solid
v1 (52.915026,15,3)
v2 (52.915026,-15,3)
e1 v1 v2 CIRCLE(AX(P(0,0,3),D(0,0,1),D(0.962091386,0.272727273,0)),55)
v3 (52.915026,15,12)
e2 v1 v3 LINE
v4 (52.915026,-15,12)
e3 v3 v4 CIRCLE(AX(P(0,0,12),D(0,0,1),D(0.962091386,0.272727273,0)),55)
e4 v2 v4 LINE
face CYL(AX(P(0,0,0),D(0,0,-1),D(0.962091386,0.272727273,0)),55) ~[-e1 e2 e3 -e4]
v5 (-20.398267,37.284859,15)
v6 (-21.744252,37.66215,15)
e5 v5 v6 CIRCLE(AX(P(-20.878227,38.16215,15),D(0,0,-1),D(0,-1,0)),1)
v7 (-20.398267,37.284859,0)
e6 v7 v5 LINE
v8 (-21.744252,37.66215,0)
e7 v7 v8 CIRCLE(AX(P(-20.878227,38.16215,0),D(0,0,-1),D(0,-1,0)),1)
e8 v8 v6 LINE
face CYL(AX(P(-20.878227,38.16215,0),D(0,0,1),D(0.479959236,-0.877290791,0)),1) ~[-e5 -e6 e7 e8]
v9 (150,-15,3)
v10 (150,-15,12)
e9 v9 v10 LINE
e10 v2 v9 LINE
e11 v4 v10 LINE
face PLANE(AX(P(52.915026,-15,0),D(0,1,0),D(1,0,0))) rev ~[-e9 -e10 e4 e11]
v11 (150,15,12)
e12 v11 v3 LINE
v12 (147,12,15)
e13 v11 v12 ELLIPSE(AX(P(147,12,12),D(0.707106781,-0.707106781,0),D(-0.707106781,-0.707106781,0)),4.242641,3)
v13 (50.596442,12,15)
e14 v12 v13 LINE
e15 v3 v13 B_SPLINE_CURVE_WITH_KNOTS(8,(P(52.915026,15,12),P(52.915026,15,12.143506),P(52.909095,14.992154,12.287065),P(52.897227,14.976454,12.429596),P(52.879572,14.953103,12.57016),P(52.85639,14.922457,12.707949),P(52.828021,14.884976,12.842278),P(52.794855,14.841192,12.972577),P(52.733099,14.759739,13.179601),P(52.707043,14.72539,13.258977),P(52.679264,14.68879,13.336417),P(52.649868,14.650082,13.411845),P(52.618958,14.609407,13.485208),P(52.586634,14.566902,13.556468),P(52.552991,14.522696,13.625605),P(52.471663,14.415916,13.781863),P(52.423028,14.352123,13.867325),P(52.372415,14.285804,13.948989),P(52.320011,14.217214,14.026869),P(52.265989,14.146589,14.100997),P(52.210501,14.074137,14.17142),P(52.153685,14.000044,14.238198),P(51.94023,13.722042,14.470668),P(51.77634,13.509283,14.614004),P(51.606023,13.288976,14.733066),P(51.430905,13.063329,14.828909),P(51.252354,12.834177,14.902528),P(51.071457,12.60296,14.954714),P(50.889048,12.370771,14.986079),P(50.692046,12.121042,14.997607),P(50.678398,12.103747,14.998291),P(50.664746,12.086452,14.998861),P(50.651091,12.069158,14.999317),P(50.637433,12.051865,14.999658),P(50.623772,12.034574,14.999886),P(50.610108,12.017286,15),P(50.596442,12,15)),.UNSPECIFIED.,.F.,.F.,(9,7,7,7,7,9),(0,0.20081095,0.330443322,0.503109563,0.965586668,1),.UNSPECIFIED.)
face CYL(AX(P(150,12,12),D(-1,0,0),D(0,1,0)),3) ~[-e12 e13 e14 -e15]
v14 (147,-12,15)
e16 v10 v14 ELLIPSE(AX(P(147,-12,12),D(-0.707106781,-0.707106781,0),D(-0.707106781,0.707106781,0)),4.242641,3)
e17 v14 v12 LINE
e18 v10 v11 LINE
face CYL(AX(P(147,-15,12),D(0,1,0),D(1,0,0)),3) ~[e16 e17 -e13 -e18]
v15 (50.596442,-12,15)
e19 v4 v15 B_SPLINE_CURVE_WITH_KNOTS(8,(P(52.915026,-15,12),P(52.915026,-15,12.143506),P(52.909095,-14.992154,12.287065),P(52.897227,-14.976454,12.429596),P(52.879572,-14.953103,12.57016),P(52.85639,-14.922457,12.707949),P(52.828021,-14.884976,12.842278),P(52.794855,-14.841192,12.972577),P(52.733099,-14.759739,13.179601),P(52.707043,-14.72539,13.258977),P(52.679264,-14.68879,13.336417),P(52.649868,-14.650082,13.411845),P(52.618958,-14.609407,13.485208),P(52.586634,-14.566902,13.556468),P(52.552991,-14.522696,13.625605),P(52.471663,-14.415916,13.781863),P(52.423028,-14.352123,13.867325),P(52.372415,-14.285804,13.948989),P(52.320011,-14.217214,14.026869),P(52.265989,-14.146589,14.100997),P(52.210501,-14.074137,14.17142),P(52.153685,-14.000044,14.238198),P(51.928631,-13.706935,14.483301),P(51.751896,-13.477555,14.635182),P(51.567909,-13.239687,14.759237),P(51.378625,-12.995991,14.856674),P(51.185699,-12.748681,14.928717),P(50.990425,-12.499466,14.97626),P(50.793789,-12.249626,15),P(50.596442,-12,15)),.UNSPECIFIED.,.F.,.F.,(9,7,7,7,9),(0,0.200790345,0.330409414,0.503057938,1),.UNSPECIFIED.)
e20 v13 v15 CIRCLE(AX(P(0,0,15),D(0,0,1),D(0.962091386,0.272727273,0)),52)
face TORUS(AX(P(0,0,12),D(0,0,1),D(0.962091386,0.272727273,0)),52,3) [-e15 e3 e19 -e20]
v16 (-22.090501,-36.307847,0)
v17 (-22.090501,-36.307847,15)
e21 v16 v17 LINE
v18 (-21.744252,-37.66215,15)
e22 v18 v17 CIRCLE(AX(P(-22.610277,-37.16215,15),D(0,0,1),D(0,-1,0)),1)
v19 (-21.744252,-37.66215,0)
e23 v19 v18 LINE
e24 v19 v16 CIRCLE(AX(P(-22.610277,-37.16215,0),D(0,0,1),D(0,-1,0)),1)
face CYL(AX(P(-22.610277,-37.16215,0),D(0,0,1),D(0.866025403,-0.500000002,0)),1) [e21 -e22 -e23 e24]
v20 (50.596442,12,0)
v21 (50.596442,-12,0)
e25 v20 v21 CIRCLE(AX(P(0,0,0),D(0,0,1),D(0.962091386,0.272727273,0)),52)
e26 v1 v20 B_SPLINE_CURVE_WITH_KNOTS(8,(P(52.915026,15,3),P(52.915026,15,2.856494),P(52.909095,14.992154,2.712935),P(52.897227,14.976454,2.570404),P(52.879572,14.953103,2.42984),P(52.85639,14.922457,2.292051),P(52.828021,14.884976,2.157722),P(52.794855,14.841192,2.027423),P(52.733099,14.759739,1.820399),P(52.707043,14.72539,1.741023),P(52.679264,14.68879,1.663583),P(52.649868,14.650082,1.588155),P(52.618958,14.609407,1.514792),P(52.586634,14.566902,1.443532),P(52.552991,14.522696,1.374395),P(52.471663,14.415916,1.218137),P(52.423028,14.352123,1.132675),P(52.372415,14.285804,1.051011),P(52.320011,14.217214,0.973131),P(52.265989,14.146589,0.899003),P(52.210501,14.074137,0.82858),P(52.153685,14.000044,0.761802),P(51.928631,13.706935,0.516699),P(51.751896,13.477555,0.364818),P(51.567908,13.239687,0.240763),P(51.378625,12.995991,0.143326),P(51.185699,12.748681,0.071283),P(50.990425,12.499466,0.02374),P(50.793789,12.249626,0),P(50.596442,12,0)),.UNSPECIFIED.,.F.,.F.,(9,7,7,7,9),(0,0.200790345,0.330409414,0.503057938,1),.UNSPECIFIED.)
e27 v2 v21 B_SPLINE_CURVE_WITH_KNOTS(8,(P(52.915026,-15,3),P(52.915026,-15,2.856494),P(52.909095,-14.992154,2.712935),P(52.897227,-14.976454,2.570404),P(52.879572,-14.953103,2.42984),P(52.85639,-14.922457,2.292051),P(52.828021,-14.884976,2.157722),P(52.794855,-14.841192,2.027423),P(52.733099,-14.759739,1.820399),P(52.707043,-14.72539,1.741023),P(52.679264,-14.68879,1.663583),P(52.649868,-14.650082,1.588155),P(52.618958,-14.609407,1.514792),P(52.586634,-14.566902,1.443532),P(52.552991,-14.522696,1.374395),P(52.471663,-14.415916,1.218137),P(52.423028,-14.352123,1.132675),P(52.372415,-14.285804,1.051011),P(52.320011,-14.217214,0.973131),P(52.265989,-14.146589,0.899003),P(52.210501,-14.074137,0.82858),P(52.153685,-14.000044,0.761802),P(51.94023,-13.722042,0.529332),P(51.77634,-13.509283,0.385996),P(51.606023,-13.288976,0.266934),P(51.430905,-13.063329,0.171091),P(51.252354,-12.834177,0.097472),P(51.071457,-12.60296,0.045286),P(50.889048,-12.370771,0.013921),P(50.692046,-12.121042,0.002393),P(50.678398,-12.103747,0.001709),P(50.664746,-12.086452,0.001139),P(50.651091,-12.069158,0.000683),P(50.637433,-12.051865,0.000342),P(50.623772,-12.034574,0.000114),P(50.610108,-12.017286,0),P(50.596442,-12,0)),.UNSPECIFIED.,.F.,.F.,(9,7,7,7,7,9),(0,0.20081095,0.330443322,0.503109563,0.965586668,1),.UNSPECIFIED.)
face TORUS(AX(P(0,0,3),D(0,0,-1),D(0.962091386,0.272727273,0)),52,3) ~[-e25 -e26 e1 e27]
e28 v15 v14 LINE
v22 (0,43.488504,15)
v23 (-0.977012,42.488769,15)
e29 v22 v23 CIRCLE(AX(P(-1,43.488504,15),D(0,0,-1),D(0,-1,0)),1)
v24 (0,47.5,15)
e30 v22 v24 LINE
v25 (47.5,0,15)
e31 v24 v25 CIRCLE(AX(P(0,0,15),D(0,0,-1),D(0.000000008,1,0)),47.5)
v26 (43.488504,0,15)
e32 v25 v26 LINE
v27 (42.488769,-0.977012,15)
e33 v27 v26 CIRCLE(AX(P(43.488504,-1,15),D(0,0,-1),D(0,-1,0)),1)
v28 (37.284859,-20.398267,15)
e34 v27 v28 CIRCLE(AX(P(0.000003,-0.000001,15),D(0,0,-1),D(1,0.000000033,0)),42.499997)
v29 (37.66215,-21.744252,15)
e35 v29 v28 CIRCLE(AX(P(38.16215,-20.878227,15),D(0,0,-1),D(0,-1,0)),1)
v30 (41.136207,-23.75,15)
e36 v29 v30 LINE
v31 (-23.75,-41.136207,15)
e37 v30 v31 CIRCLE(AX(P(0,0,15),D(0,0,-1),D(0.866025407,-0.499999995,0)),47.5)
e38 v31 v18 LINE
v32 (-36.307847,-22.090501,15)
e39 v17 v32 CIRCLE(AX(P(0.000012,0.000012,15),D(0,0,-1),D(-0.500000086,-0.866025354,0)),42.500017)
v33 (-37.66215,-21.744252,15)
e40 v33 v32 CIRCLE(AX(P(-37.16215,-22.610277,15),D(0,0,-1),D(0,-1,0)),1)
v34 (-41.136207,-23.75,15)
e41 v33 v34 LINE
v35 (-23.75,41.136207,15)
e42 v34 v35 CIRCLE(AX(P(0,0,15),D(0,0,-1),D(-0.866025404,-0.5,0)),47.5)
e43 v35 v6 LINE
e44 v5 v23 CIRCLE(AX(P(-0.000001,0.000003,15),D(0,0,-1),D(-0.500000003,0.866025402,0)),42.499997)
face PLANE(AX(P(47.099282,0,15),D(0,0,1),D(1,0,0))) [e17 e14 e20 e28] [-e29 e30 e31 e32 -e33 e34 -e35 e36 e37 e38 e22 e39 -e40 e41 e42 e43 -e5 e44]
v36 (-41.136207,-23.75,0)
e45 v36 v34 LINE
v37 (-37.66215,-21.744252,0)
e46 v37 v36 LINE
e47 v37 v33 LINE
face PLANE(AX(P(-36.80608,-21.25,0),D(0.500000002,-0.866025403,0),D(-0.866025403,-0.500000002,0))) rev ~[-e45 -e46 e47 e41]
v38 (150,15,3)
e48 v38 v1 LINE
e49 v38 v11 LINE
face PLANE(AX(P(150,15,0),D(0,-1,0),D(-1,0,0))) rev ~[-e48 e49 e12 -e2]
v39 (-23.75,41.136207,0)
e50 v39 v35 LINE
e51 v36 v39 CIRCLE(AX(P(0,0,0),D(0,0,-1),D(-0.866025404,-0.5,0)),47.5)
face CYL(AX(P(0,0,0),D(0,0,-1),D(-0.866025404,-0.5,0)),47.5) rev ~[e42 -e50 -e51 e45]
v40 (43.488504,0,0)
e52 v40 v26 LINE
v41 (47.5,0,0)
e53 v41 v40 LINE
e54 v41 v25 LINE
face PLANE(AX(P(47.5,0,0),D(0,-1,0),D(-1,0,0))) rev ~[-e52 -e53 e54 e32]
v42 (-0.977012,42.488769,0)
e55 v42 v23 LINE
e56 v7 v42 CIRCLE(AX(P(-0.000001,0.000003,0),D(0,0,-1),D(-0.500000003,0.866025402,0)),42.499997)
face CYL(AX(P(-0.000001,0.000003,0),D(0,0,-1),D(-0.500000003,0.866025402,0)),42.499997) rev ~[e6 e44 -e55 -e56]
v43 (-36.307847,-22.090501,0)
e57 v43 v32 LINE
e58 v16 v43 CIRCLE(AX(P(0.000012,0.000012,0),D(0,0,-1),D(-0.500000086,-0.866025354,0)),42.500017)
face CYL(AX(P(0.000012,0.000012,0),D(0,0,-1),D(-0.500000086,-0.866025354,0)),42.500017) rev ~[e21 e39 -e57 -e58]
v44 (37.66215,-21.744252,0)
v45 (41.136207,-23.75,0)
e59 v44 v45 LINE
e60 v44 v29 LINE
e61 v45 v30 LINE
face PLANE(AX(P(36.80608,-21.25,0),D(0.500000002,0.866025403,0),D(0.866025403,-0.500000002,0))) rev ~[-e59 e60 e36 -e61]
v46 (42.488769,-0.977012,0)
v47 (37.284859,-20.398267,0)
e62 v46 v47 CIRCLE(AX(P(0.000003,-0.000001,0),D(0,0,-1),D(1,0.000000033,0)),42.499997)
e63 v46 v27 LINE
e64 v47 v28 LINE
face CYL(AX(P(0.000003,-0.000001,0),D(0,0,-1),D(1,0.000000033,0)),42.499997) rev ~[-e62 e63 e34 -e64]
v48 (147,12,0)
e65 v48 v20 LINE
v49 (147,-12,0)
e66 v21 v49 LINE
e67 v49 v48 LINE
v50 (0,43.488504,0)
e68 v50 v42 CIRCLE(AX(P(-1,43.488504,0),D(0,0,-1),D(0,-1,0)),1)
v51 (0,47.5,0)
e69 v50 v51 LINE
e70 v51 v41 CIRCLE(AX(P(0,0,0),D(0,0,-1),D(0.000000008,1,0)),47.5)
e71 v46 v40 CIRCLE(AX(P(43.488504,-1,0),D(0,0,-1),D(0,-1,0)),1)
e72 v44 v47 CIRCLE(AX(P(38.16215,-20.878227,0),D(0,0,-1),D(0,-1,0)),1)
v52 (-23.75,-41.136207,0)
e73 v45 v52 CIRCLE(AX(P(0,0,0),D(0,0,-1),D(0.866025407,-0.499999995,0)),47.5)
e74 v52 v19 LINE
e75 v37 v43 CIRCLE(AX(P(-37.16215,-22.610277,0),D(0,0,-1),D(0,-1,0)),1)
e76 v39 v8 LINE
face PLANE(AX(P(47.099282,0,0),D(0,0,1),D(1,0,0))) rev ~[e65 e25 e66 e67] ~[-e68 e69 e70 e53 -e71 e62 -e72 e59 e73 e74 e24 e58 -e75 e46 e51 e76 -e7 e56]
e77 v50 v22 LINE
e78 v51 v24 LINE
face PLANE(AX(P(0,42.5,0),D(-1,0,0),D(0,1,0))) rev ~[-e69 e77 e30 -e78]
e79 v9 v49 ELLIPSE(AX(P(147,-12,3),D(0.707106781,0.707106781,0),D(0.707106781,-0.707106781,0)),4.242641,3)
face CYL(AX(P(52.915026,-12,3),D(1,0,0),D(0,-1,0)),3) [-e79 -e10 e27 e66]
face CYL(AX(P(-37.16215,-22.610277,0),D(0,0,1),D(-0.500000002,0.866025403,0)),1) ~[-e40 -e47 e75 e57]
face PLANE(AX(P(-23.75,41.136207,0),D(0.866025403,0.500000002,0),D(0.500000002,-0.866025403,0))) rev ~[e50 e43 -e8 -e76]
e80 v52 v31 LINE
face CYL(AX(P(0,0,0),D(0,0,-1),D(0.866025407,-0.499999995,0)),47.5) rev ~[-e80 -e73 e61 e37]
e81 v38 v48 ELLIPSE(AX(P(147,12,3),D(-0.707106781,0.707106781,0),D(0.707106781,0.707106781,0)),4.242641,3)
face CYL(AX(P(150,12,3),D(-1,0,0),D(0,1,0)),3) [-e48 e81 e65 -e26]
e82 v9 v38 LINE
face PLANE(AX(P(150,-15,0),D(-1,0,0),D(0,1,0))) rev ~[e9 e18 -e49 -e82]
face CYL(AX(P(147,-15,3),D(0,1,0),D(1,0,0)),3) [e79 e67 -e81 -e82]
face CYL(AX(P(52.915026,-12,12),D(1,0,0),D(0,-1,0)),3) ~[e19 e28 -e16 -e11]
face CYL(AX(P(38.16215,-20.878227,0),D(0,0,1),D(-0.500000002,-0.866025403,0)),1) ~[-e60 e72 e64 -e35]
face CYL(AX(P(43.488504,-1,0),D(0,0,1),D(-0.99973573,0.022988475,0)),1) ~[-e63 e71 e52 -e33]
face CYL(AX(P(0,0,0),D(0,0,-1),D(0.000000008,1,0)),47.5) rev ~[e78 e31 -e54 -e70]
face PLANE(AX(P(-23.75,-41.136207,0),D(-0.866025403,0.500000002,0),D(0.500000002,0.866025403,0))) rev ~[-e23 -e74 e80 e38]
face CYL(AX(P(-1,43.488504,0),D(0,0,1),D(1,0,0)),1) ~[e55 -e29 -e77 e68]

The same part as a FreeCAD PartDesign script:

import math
import FreeCAD as App
import Part
import Sketcher

V = App.Vector
Q = App.Units.Quantity


def edges_at(feature, points):
    """Names of the edges that pass closest to the given points."""
    edges = feature.Shape.Edges
    near = lambda p: min(range(len(edges)), key=lambda i: edges[i].distToShape(Part.Vertex(*p))[0])
    return sorted({f"Edge{near(p) + 1}" for p in points})

doc = App.newDocument("Part")
body = doc.addObject("PartDesign::Body", "Body")

sketch1 = doc.addObject("Sketcher::SketchObject", "Sketch")
body.addObject(sketch1)
sketch1.AttachmentSupport = (doc.XY_Plane, [""])
sketch1.MapMode = "FlatFace"
sketch1.addGeometry([
    Part.LineSegment(V(150, 15, 0), V(52.915026, 15, 0)),
    Part.ArcOfCircle(Part.Circle(V(0, 0, 0), V(0, 0, 1), 55), math.radians(15.82662), math.radians(344.17338)),
    Part.LineSegment(V(52.915026, -15, 0), V(150, -15, 0)),
    Part.LineSegment(V(150, -15, 0), V(150, 15, 0)),
    Part.LineSegment(V(-23.75, -41.136207, 0), V(-21.25, -36.80608, 0)),
    Part.ArcOfCircle(Part.Circle(V(0.000012, 0.000012, 0), V(0, 0, 1), 42.500017), math.radians(-149.999994), math.radians(-120.000006)),
    Part.LineSegment(V(-36.80608, -21.25, 0), V(-41.136207, -23.75, 0)),
    Part.ArcOfCircle(Part.Circle(V(0, 0, 0), V(0, 0, 1), 47.5), math.radians(120), math.radians(210)),
    Part.LineSegment(V(-23.75, 41.136207, 0), V(-21.25, 36.80608, 0)),
    Part.ArcOfCircle(Part.Circle(V(-0.000001, 0.000003, 0), V(0, 0, 1), 42.499997), math.radians(89.999998), math.radians(120)),
    Part.LineSegment(V(0, 42.5, 0), V(0, 47.5, 0)),
    Part.ArcOfCircle(Part.Circle(V(0, 0, 0), V(0, 0, 1), 47.5), math.radians(0), math.radians(90)),
    Part.LineSegment(V(47.5, 0, 0), V(42.5, 0, 0)),
    Part.ArcOfCircle(Part.Circle(V(0.000003, -0.000001, 0), V(0, 0, 1), 42.499997), math.radians(-30), math.radians(0.000002)),
    Part.LineSegment(V(36.80608, -21.25, 0), V(41.136207, -23.75, 0)),
    Part.ArcOfCircle(Part.Circle(V(0, 0, 0), V(0, 0, 1), 47.5), math.radians(-120), math.radians(-30)),
], False)
sketch1.addConstraint([
    Sketcher.Constraint("Coincident", 0, 2, 1, 1),
    Sketcher.Constraint("Coincident", 1, 2, 2, 1),
    Sketcher.Constraint("Coincident", 2, 2, 3, 1),
    Sketcher.Constraint("Coincident", 3, 2, 0, 1),
    Sketcher.Constraint("Coincident", 4, 2, 5, 2),
    Sketcher.Constraint("Coincident", 5, 1, 6, 1),
    Sketcher.Constraint("Coincident", 6, 2, 7, 2),
    Sketcher.Constraint("Coincident", 7, 1, 8, 1),
    Sketcher.Constraint("Coincident", 8, 2, 9, 2),
    Sketcher.Constraint("Coincident", 9, 1, 10, 1),
    Sketcher.Constraint("Coincident", 10, 2, 11, 2),
    Sketcher.Constraint("Coincident", 11, 1, 12, 1),
    Sketcher.Constraint("Coincident", 12, 2, 13, 2),
    Sketcher.Constraint("Coincident", 13, 1, 14, 1),
    Sketcher.Constraint("Coincident", 14, 2, 15, 2),
    Sketcher.Constraint("Coincident", 15, 1, 4, 1),
    Sketcher.Constraint("Horizontal", 0),
    Sketcher.Constraint("Horizontal", 2),
    Sketcher.Constraint("Vertical", 3),
    Sketcher.Constraint("Vertical", 10),
    Sketcher.Constraint("Horizontal", 12),
    Sketcher.Constraint("Coincident", 1, 3, -1, 1),
    Sketcher.Constraint("Coincident", 7, 3, -1, 1),
    Sketcher.Constraint("Coincident", 9, 3, -1, 1),
    Sketcher.Constraint("Coincident", 11, 3, -1, 1),
    Sketcher.Constraint("Coincident", 13, 3, -1, 1),
    Sketcher.Constraint("Coincident", 15, 3, -1, 1),
    Sketcher.Constraint("Equal", 7, 11),
    Sketcher.Constraint("Equal", 9, 13),
    Sketcher.Constraint("Equal", 11, 15),
    Sketcher.Constraint("Symmetric", 5, 1, 13, 1, -2),
    Sketcher.Constraint("Symmetric", 4, 2, 8, 2, -1),
    Sketcher.Constraint("PointOnObject", 9, 1, -2),
    Sketcher.Constraint("PointOnObject", 11, 1, -1),
    Sketcher.Constraint("Perpendicular", 6, 8),
    Sketcher.Constraint("Perpendicular", 4, 14),
    Sketcher.Constraint("Horizontal", 6, 2, 14, 2),
    Sketcher.Constraint("Vertical", 0, 2, 1, 2),
    Sketcher.Constraint("Radius", 1, Q("55 mm")),
    Sketcher.Constraint("Radius", 7, Q("47.5 mm")),
    Sketcher.Constraint("DistanceX", 12, 2, 12, 1, Q("5 mm")),
    Sketcher.Constraint("DistanceY", 3, 1, 3, 2, Q("30 mm")),
    Sketcher.Constraint("Angle", 4, Q("60 deg")),
    Sketcher.Constraint("DistanceX", -1, 1, 2, 2, Q("150 mm")),
    Sketcher.Constraint("DistanceX", 4, 2, -1, 1, Q("21.25 mm")),
    Sketcher.Constraint("DistanceY", 5, 1, -1, 1, Q("21.25 mm")),
    Sketcher.Constraint("Radius", 5, Q("42.500017 mm")),
])
pad1 = doc.addObject("PartDesign::Pad", "Pad")
body.addObject(pad1)
pad1.Profile = sketch1
pad1.Length = 15
doc.recompute()

fillet = doc.addObject("PartDesign::Fillet", "Fillet")
body.addObject(fillet)
fillet.Base = (pad1, edges_at(pad1, [
    (101.458, 15, 15),
    (150, 0, 15),
    (101.458, -15, 15),
    (-55, 0, 15),
    (101.458, -15, 0),
    (150, 0, 0),
    (-55, 0, 0),
    (101.458, 15, 0),
]))
fillet.Radius = 3
doc.recompute()

fillet2 = doc.addObject("PartDesign::Fillet", "Fillet001")
body.addObject(fillet2)
fillet2.Base = (fillet, edges_at(fillet, [
    (36.806, -21.25, 7.5),
    (42.5, 0, 7.5),
    (0, 42.5, 7.5),
    (-21.25, 36.806, 7.5),
    (-21.25, -36.806, 7.5),
    (-36.806, -21.25, 7.5),
]))
fillet2.Radius = 1

doc.recompute()
